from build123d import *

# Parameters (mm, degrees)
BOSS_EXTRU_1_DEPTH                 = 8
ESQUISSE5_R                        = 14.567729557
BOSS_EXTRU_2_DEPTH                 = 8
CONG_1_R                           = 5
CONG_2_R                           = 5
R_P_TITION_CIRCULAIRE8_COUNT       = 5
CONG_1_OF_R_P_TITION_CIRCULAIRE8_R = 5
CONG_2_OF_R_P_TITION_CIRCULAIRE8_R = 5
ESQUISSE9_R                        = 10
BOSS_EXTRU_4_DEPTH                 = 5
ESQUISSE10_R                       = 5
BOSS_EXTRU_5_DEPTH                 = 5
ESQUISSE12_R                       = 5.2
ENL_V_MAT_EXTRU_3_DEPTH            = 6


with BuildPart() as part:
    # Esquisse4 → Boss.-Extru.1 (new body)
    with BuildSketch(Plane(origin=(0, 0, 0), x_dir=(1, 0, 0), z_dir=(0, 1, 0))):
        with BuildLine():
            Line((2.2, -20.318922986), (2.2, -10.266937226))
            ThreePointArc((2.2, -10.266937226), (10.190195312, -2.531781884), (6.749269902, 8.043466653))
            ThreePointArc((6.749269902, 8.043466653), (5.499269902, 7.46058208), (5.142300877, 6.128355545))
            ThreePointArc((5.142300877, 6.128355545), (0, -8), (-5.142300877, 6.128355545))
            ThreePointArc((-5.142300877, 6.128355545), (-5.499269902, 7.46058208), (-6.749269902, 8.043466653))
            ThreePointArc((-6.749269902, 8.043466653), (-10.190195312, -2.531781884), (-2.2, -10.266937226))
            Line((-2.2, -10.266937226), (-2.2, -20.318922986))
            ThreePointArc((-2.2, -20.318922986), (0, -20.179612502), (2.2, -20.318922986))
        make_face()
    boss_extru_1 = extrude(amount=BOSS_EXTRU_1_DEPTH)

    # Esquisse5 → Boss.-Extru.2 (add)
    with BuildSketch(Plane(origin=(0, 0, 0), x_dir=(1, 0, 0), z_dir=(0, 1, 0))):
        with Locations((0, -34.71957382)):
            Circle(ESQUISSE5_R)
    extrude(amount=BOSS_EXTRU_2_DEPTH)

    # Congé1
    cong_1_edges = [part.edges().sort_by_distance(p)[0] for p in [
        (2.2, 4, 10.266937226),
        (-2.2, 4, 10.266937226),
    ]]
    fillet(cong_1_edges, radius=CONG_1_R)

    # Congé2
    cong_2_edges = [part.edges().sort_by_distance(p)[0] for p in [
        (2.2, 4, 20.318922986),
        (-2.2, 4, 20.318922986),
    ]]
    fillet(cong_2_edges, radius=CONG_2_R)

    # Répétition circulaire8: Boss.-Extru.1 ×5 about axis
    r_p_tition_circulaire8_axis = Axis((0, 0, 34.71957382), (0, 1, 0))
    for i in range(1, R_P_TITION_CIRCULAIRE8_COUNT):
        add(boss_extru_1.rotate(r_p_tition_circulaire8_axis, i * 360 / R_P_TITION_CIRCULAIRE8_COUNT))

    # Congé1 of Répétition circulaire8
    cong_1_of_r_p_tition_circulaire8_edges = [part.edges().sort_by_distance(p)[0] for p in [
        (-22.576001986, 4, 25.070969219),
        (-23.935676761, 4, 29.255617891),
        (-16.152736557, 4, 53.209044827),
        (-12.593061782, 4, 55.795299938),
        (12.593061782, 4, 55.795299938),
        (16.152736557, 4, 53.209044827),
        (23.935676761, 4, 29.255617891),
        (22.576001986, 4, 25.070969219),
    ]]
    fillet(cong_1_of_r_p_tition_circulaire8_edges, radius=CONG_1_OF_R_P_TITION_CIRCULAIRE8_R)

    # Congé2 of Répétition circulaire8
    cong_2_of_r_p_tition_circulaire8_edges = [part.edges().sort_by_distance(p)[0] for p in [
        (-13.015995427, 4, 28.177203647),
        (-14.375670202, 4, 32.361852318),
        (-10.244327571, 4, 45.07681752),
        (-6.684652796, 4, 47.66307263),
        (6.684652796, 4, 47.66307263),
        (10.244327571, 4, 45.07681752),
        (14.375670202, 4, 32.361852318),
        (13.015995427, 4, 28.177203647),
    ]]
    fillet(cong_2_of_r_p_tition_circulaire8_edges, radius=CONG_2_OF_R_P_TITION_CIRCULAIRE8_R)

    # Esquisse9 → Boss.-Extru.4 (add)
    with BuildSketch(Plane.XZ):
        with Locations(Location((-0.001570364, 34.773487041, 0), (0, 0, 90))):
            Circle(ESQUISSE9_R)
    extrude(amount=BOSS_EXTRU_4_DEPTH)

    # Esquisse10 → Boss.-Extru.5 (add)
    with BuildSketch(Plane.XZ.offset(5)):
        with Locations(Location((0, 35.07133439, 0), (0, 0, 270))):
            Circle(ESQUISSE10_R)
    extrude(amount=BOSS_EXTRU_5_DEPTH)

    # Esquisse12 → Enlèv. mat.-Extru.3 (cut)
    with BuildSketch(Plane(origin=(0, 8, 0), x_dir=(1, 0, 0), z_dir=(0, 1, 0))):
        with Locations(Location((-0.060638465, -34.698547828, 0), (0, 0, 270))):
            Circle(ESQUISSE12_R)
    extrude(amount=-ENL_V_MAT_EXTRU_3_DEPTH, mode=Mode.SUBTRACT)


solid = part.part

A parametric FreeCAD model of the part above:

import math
import FreeCAD as App
import Part
import Sketcher

V = App.Vector
Q = App.Units.Quantity


def edges_at(feature, points):
    """Names of the edges that pass closest to the given points."""
    edges = feature.Shape.Edges
    near = lambda p: min(range(len(edges)), key=lambda i: edges[i].distToShape(Part.Vertex(*p))[0])
    return sorted({f"Edge{near(p) + 1}" for p in points})

doc = App.newDocument("Part")
params = doc.addObject("Spreadsheet::Sheet", "Params")
for row, (alias, value) in enumerate([
    ("sketch1_radius", "8 mm"),
    ("sketch1_radius2", "10.5 mm"),
    ("pad1_length", "8 mm"),
    ("pad2_length", "8 mm"),
    ("fillet_radius", "5 mm"),
    ("fillet2_radius", "5 mm"),
    ("fillet3_radius", "5 mm"),
    ("fillet4_radius", "5 mm"),
    ("sketch3_diameter", "20 mm"),
    ("pad3_length", "5 mm"),
    ("sketch4_diameter", "10 mm"),
    ("pad4_length", "5 mm"),
    ("sketch5_diameter", "10.4 mm"),
    ("pocket1_length", "6 mm"),
], start=1):
    params.set(f"A{row}", alias)
    params.set(f"B{row}", "=" + value)
    params.setAlias(f"B{row}", alias)

body = doc.addObject("PartDesign::Body", "Body")

sketch1 = body.newObject("Sketcher::SketchObject", "Sketch")
sketch1.AttachmentSupport = (doc.getObject("XZ_Plane"), [""])
sketch1.MapMode = "FlatFace"
sketch1.addGeometry([
    Part.LineSegment(V(2.2, 20.3, 0), V(2.2, 10.3, 0)),
    Part.ArcOfCircle(Part.Circle(V(0, 0, 0), V(0, 0, 1), 10.5), math.radians(-50), math.radians(78)),
    Part.ArcOfCircle(Part.Circle(V(6.7, -6.4, 0), V(0, 0, 1), 1.6), math.radians(170), math.radians(270)),
    Part.ArcOfCircle(Part.Circle(V(0, 0, 0), V(0, 0, 1), 8), math.radians(-50), math.radians(230)),
    Part.ArcOfCircle(Part.Circle(V(-6.7, -6.4, 0), V(0, 0, 1), 1.6), math.radians(-90), math.radians(10)),
    Part.ArcOfCircle(Part.Circle(V(0, 0, 0), V(0, 0, 1), 10.5), math.radians(102), math.radians(230)),
    Part.LineSegment(V(-2.2, 10.3, 0), V(-2.2, 20.3, 0)),
    Part.ArcOfCircle(Part.Circle(V(0, 37.6, 0), V(0, 0, 1), 17.4), math.radians(-97.25), math.radians(-82.75)),
], False)
sketch1.addConstraint([
    Sketcher.Constraint("Coincident", 0, 2, 1, 2),
    Sketcher.Constraint("Coincident", 1, 1, 2, 2),
    Sketcher.Constraint("Coincident", 2, 1, 3, 1),
    Sketcher.Constraint("Coincident", 3, 2, 4, 2),
    Sketcher.Constraint("Coincident", 4, 1, 5, 2),
    Sketcher.Constraint("Coincident", 5, 1, 6, 1),
    Sketcher.Constraint("Coincident", 6, 2, 7, 1),
    Sketcher.Constraint("Coincident", 7, 2, 0, 1),
    Sketcher.Constraint("Vertical", 0),
    Sketcher.Constraint("Vertical", 6),
    Sketcher.Constraint("Coincident", 1, 3, -1, 1),
    Sketcher.Constraint("Coincident", 3, 3, -1, 1),
    Sketcher.Constraint("Coincident", 5, 3, -1, 1),
    Sketcher.Constraint("Equal", 2, 4),
    Sketcher.Constraint("Equal", 1, 5),
    Sketcher.Constraint("Symmetric", 2, 3, 4, 3, -2),
    Sketcher.Constraint("Symmetric", 6, 2, 7, 2, -2),
    Sketcher.Constraint("Vertical", 2, 3, 1, 1),
    Sketcher.Constraint("Radius", 3, Q("8 mm")),
    Sketcher.Constraint("Radius", 1, Q("10.5 mm")),
    Sketcher.Constraint("DistanceX", -1, 1, 0, 2, Q("2.2 mm")),
    Sketcher.Constraint("Radius", 2, Q("1.631759 mm")),
    Sketcher.Constraint("Radius", 7, Q("17.440925 mm")),
    Sketcher.Constraint("DistanceX", -1, 1, 2, 1, Q("5.142301 mm")),
    Sketcher.Constraint("DistanceY", 0, 2, 0, 1, Q("10.051986 mm")),
])
sketch1.setExpression("Constraints[18]", "Params.sketch1_radius")
sketch1.setExpression("Constraints[19]", "Params.sketch1_radius2")
pad1 = body.newObject("PartDesign::Pad", "Pad")
pad1.Profile = sketch1
pad1.setExpression("Length", "Params.pad1_length")
pad1.Reversed = True

sketch2 = body.newObject("Sketcher::SketchObject", "Sketch001")
sketch2.AttachmentSupport = (doc.getObject("XZ_Plane"), [""])
sketch2.MapMode = "FlatFace"
sketch2.addGeometry(Part.Circle(V(0, 35, 0), V(0, 0, 1), 15), False)
sketch2.addConstraint([
    Sketcher.Constraint("PointOnObject", 0, 3, -2),
    Sketcher.Constraint("Diameter", 0, Q("29.135459 mm")),
    Sketcher.Constraint("DistanceY", -1, 1, 0, 3, Q("34.719574 mm")),
])
pad2 = body.newObject("PartDesign::Pad", "Pad001")
pad2.Profile = sketch2
pad2.setExpression("Length", "Params.pad2_length")
pad2.Reversed = True
doc.recompute()

fillet = body.newObject("PartDesign::Fillet", "Fillet")
fillet.Base = (pad2, edges_at(pad2, [(2.2, 4, 10.267), (-2.2, 4, 10.267)]))
fillet.setExpression("Radius", "Params.fillet_radius")
doc.recompute()

fillet2 = body.newObject("PartDesign::Fillet", "Fillet001")
fillet2.Base = (fillet, edges_at(fillet, [(2.2, 4, 20.319), (-2.2, 4, 20.319)]))
fillet2.setExpression("Radius", "Params.fillet2_radius")
doc.recompute()

datumline = body.newObject("PartDesign::Line", "DatumLine")
datumline.Placement = App.Placement(V(0, 0, 34.719574), App.Rotation(V(0, 0, 1), V(0, 1, 0)))
polarpattern = body.newObject("PartDesign::PolarPattern", "PolarPattern")
polarpattern.Originals = [pad1]
polarpattern.Axis = (datumline, [""])
polarpattern.Angle = 360
polarpattern.Occurrences = 5
body.Tip = polarpattern
doc.recompute()

fillet3 = body.newObject("PartDesign::Fillet", "Fillet002")
fillet3.Base = (polarpattern, edges_at(polarpattern, [
    (-22.576, 4, 25.071),
    (-23.936, 4, 29.256),
    (-16.153, 4, 53.209),
    (-12.593, 4, 55.795),
    (12.593, 4, 55.795),
    (16.153, 4, 53.209),
    (23.936, 4, 29.256),
    (22.576, 4, 25.071),
]))
fillet3.setExpression("Radius", "Params.fillet3_radius")
doc.recompute()

fillet4 = body.newObject("PartDesign::Fillet", "Fillet003")
fillet4.Base = (fillet3, edges_at(fillet3, [
    (-13.016, 4, 28.177),
    (-14.376, 4, 32.362),
    (-10.244, 4, 45.077),
    (-6.685, 4, 47.663),
    (6.685, 4, 47.663),
    (10.244, 4, 45.077),
    (14.376, 4, 32.362),
    (13.016, 4, 28.177),
]))
fillet4.setExpression("Radius", "Params.fillet4_radius")

sketch3 = body.newObject("Sketcher::SketchObject", "Sketch002")
sketch3.AttachmentSupport = (doc.getObject("XZ_Plane"), [""])
sketch3.MapMode = "FlatFace"
sketch3.addGeometry(Part.Circle(V(0, 35, 0), V(0, 0, 1), 10), False)
sketch3.addConstraint([
    Sketcher.Constraint("Diameter", 0, Q("20 mm")),
    Sketcher.Constraint("DistanceX", 0, 3, -1, 1, Q("0.00157 mm")),
    Sketcher.Constraint("DistanceY", -1, 1, 0, 3, Q("34.773487 mm")),
])
sketch3.setExpression("Constraints[0]", "Params.sketch3_diameter")
pad3 = body.newObject("PartDesign::Pad", "Pad002")
pad3.Profile = sketch3
pad3.setExpression("Length", "Params.pad3_length")

sketch4 = body.newObject("Sketcher::SketchObject", "Sketch003")
sketch4.AttachmentSupport = (doc.getObject("XZ_Plane"), [""])
sketch4.MapMode = "FlatFace"
sketch4.AttachmentOffset = App.Placement(V(0, 0, 5), App.Rotation())
sketch4.addGeometry(Part.Circle(V(0, 35, 0), V(0, 0, 1), 5), False)
sketch4.addConstraint([
    Sketcher.Constraint("PointOnObject", 0, 3, -2),
    Sketcher.Constraint("Diameter", 0, Q("10 mm")),
    Sketcher.Constraint("DistanceY", -1, 1, 0, 3, Q("35.071334 mm")),
])
sketch4.setExpression("Constraints[1]", "Params.sketch4_diameter")
pad4 = body.newObject("PartDesign::Pad", "Pad003")
pad4.Profile = sketch4
pad4.setExpression("Length", "Params.pad4_length")

sketch5 = body.newObject("Sketcher::SketchObject", "Sketch004")
sketch5.AttachmentSupport = (doc.getObject("XZ_Plane"), [""])
sketch5.MapMode = "FlatFace"
sketch5.AttachmentOffset = App.Placement(V(0, 0, -8), App.Rotation())
sketch5.addGeometry(Part.Circle(V(0, 35, 0), V(0, 0, 1), 5), False)
sketch5.addConstraint([
    Sketcher.Constraint("Diameter", 0, Q("10.4 mm")),
    Sketcher.Constraint("DistanceX", 0, 3, -1, 1, Q("0.060638 mm")),
    Sketcher.Constraint("DistanceY", -1, 1, 0, 3, Q("34.698548 mm")),
])
sketch5.setExpression("Constraints[0]", "Params.sketch5_diameter")
pocket1 = body.newObject("PartDesign::Pocket", "Pocket")
pocket1.Profile = sketch5
pocket1.setExpression("Length", "Params.pocket1_length")
pocket1.Reversed = True

doc.recompute()
